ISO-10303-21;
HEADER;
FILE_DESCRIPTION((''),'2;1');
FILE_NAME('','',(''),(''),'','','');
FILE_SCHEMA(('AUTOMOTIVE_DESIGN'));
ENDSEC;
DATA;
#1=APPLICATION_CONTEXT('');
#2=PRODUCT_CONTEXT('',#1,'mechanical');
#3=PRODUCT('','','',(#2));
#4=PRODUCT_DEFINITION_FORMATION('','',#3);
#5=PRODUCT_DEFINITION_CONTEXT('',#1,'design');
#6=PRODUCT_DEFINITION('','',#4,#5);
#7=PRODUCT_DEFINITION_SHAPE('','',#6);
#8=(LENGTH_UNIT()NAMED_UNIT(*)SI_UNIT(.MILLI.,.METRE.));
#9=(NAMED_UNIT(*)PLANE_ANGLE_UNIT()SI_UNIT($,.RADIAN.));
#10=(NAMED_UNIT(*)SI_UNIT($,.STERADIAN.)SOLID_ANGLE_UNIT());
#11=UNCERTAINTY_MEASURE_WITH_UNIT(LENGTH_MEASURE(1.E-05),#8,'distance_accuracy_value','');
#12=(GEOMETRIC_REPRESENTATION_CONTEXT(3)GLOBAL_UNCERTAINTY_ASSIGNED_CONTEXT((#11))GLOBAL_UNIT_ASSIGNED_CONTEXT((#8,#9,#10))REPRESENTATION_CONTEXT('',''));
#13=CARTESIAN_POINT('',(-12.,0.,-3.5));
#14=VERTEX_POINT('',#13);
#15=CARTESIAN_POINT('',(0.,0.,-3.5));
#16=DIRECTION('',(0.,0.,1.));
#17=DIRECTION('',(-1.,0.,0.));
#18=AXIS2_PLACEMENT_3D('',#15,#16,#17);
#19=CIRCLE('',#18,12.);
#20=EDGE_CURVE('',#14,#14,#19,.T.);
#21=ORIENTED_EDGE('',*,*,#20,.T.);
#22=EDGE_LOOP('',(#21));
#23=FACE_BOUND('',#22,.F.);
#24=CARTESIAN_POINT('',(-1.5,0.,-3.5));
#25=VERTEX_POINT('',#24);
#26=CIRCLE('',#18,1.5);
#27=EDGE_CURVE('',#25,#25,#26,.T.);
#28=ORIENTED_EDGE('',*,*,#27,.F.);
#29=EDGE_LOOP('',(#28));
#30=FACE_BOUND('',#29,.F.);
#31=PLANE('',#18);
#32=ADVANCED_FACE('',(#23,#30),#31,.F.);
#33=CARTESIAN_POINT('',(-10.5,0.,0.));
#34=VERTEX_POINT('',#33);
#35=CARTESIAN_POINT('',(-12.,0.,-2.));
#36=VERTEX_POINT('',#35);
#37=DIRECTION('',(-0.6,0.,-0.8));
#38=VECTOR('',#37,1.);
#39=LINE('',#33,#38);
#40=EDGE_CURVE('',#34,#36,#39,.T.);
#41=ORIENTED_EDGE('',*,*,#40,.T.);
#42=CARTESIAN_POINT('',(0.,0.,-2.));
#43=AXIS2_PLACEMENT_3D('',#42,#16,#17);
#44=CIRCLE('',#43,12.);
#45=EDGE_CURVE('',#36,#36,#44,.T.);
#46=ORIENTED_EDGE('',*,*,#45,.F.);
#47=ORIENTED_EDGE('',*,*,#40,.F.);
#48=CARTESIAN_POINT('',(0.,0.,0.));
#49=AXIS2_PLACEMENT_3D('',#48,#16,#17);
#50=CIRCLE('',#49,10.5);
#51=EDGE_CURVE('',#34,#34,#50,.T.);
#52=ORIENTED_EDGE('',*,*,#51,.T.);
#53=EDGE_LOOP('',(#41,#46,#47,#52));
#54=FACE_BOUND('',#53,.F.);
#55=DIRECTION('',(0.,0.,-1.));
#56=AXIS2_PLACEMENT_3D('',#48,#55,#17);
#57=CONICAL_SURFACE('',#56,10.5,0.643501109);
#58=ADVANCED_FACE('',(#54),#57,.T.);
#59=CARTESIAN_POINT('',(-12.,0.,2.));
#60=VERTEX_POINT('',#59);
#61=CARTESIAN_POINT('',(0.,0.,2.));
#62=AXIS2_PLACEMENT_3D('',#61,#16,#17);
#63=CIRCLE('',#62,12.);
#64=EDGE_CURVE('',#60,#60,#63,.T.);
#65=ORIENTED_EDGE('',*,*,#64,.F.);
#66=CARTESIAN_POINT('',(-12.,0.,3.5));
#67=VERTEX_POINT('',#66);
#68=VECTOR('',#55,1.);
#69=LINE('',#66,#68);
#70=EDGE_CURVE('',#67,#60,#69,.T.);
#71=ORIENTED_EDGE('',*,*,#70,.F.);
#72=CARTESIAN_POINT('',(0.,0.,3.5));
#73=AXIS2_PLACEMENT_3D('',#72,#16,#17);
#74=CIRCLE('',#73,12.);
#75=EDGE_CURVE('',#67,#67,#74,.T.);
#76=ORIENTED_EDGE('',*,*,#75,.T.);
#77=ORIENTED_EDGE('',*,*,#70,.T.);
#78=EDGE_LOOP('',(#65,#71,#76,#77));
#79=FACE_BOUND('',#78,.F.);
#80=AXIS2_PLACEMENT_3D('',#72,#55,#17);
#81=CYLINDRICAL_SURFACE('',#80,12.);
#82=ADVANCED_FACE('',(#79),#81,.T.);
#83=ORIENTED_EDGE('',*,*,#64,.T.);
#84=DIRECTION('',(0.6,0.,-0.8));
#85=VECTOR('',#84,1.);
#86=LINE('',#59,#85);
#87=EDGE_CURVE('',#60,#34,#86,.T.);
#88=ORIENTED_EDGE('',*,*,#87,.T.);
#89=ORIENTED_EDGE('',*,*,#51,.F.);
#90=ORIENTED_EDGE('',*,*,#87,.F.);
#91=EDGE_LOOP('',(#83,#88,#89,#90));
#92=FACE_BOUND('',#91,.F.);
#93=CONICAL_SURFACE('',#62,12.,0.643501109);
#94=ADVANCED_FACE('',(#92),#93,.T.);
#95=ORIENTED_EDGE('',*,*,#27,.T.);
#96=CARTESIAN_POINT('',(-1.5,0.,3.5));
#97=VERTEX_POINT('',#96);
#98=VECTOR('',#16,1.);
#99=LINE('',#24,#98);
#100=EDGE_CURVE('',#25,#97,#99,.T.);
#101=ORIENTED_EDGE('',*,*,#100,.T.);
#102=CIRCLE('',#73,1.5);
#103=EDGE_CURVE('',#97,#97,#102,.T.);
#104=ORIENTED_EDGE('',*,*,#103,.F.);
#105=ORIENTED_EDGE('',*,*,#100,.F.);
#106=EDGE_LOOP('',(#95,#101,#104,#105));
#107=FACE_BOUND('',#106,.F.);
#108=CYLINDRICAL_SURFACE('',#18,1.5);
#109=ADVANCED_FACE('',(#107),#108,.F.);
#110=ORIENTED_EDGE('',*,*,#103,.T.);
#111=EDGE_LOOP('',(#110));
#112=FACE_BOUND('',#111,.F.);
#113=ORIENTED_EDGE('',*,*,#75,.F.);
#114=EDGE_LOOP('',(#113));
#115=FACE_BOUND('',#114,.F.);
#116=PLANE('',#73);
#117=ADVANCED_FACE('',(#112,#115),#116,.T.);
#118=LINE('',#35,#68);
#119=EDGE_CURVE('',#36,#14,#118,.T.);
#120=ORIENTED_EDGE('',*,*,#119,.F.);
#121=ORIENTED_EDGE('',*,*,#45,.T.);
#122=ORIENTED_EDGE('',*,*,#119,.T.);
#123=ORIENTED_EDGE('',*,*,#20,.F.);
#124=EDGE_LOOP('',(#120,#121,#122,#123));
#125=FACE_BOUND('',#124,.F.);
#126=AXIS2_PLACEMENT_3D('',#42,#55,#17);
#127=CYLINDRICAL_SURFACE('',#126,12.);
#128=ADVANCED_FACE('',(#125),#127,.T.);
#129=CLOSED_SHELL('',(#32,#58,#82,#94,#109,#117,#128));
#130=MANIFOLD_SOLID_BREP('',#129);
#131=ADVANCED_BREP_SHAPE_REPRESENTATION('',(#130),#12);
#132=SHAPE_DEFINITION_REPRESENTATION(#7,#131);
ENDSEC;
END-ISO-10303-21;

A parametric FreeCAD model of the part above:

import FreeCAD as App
import Part
import Sketcher

V = App.Vector
Q = App.Units.Quantity


def add_polygon(sketch, points):
    """Adds a closed chain of lines whose ends are joined by coincident constraints."""
    first, n = sketch.GeometryCount, len(points)
    for a, b in zip(points, points[1:] + points[:1]):
        sketch.addGeometry(Part.LineSegment(App.Vector(*a, 0), App.Vector(*b, 0)), False)
    for i in range(n):
        sketch.addConstraint(Sketcher.Constraint("Coincident", first + i, 2, first + (i + 1) % n, 1))

doc = App.newDocument("Part")
body = doc.addObject("PartDesign::Body", "Body")

sketch1 = body.newObject("Sketcher::SketchObject", "Sketch")
sketch1.AttachmentSupport = (doc.getObject("XZ_Plane"), [""])
sketch1.MapMode = "FlatFace"
add_polygon(sketch1, [(-1.5, 3.5), (-12, 3.5), (-12, 2), (-10.5, 0), (-12, -2), (-12, -3.5), (-1.5, -3.5)])
sketch1.addConstraint([
    Sketcher.Constraint("Horizontal", 0),
    Sketcher.Constraint("Vertical", 1),
    Sketcher.Constraint("Vertical", 4),
    Sketcher.Constraint("Horizontal", 5),
    Sketcher.Constraint("Vertical", 6),
    Sketcher.Constraint("Symmetric", 1, 2, 3, 2, -1),
    Sketcher.Constraint("PointOnObject", 2, 2, -1),
    Sketcher.Constraint("Equal", 1, 4),
    Sketcher.Constraint("DistanceY", 6, 1, 6, 2, Q("7 mm")),
    Sketcher.Constraint("DistanceX", 0, 2, 0, 1, Q("10.5 mm")),
    Sketcher.Constraint("DistanceY", 1, 2, 1, 1, Q("1.5 mm")),
    Sketcher.Constraint("DistanceX", 0, 2, -1, 1, Q("12 mm")),
    Sketcher.Constraint("DistanceX", 2, 2, 5, 2, Q("9 mm")),
])
revolution = body.newObject("PartDesign::Revolution", "Revolution")
revolution.Profile = sketch1
revolution.ReferenceAxis = (sketch1, ["V_Axis"])
revolution.Angle = 360

doc.recompute()
